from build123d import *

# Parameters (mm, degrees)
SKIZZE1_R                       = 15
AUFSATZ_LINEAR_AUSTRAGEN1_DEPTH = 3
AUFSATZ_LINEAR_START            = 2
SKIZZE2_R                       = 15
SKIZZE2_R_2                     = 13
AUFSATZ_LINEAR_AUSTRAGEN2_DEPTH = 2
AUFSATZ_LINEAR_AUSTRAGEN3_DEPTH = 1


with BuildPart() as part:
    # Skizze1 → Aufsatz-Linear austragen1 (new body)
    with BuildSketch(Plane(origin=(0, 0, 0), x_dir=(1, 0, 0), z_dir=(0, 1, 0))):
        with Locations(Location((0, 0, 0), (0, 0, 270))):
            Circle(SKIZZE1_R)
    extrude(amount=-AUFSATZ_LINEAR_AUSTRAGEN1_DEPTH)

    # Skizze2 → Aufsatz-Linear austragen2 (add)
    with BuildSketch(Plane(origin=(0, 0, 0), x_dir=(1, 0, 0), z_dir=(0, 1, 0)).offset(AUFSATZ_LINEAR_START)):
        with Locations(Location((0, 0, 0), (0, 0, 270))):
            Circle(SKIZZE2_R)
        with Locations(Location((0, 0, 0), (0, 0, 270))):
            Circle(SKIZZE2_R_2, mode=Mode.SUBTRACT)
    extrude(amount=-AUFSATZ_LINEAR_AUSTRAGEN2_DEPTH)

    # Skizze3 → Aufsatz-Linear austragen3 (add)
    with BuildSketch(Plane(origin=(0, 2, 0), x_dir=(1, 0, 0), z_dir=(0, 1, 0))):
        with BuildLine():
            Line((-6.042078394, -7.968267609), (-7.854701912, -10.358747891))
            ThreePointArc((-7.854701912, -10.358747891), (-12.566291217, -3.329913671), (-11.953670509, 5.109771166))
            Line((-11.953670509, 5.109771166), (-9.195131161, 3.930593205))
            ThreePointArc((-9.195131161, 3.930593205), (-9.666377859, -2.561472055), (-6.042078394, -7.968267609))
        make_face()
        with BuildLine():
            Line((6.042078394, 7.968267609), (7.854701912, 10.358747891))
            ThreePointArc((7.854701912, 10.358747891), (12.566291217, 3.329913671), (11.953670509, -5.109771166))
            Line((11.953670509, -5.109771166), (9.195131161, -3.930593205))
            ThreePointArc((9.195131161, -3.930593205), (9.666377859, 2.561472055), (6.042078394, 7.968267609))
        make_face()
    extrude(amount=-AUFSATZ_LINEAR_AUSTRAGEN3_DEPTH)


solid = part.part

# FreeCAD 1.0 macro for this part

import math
import FreeCAD as App
import Part
import Sketcher

V = App.Vector

doc = App.newDocument("Part")
body = doc.addObject("PartDesign::Body", "Body")

# Sketch on XZ plane
sketch1 = body.newObject("Sketcher::SketchObject", "Sketch")
sketch1.AttachmentSupport = (doc.getObject("XZ_Plane"), [""])
sketch1.MapMode = "FlatFace"
sketch1.addGeometry(Part.Circle(V(0, 0, 0), V(0, 0, 1), 15), False)
sketch1.addConstraint(Sketcher.Constraint("Coincident", 0, 3, -1, 1))
sketch1.addConstraint(Sketcher.Constraint("Diameter", 0, 30.0))
pad1 = body.newObject("PartDesign::Pad", "Pad")
pad1.Profile = sketch1
pad1.Length = 3

# Sketch on XZ plane
sketch2 = body.newObject("Sketcher::SketchObject", "Sketch001")
sketch2.AttachmentSupport = (doc.getObject("XZ_Plane"), [""])
sketch2.MapMode = "FlatFace"
sketch2.AttachmentOffset = App.Placement(V(0, 0, -2), App.Rotation())
sketch2.addGeometry(Part.Circle(V(0, 0, 0), V(0, 0, 1), 15), False)
sketch2.addGeometry(Part.Circle(V(0, 0, 0), V(0, 0, 1), 13), False)
sketch2.addConstraint(Sketcher.Constraint("Coincident", 0, 3, -1, 1))
sketch2.addConstraint(Sketcher.Constraint("Coincident", 1, 3, -1, 1))
sketch2.addConstraint(Sketcher.Constraint("Diameter", 0, 30.0))
sketch2.addConstraint(Sketcher.Constraint("Diameter", 1, 26.0))
pad2 = body.newObject("PartDesign::Pad", "Pad001")
pad2.Profile = sketch2
pad2.Length = 2

# Sketch on XZ plane
sketch3 = body.newObject("Sketcher::SketchObject", "Sketch002")
sketch3.AttachmentSupport = (doc.getObject("XZ_Plane"), [""])
sketch3.MapMode = "FlatFace"
sketch3.AttachmentOffset = App.Placement(V(0, 0, -2), App.Rotation())
sketch3.addGeometry(Part.LineSegment(V(-7.854702, 10.358748, 0), V(-6.042078, 7.968268, 0)), False)
sketch3.addGeometry(Part.ArcOfCircle(Part.Circle(V(0, 0, 0), V(0, 0, 1), 10), math.radians(127.17186), math.radians(203.144994)), False)
sketch3.addGeometry(Part.LineSegment(V(-9.195131, -3.930593, 0), V(-11.953671, -5.109771, 0)), False)
sketch3.addGeometry(Part.ArcOfCircle(Part.Circle(V(0, 0, 0), V(0, 0, 1), 13), math.radians(127.17186), math.radians(203.144994)), False)
sketch3.addGeometry(Part.LineSegment(V(7.854702, -10.358748, 0), V(6.042078, -7.968268, 0)), False)
sketch3.addGeometry(Part.ArcOfCircle(Part.Circle(V(0, 0, 0), V(0, 0, 1), 10), math.radians(-52.82814), math.radians(23.144994)), False)
sketch3.addGeometry(Part.LineSegment(V(9.195131, 3.930593, 0), V(11.953671, 5.109771, 0)), False)
sketch3.addGeometry(Part.ArcOfCircle(Part.Circle(V(0, 0, 0), V(0, 0, 1), 13), math.radians(-52.82814), math.radians(23.144994)), False)
sketch3.addConstraint(Sketcher.Constraint("Coincident", 0, 2, 1, 1))
sketch3.addConstraint(Sketcher.Constraint("Coincident", 1, 2, 2, 1))
sketch3.addConstraint(Sketcher.Constraint("Coincident", 2, 2, 3, 2))
sketch3.addConstraint(Sketcher.Constraint("Coincident", 3, 1, 0, 1))
sketch3.addConstraint(Sketcher.Constraint("Coincident", 4, 2, 5, 1))
sketch3.addConstraint(Sketcher.Constraint("Coincident", 5, 2, 6, 1))
sketch3.addConstraint(Sketcher.Constraint("Coincident", 6, 2, 7, 2))
sketch3.addConstraint(Sketcher.Constraint("Coincident", 7, 1, 4, 1))
sketch3.addConstraint(Sketcher.Constraint("Coincident", 1, 3, -1, 1))
sketch3.addConstraint(Sketcher.Constraint("Coincident", 3, 3, -1, 1))
sketch3.addConstraint(Sketcher.Constraint("Coincident", 5, 3, -1, 1))
sketch3.addConstraint(Sketcher.Constraint("Coincident", 7, 3, -1, 1))
sketch3.addConstraint(Sketcher.Constraint("Equal", 1, 5))
sketch3.addConstraint(Sketcher.Constraint("Equal", 3, 7))
sketch3.addConstraint(Sketcher.Constraint("Parallel", 0, 4))
sketch3.addConstraint(Sketcher.Constraint("Parallel", 2, 6))
sketch3.addConstraint(Sketcher.Constraint("Radius", 1, 10.0))
sketch3.addConstraint(Sketcher.Constraint("Radius", 3, 13.0))
sketch3.addConstraint(Sketcher.Constraint("DistanceX", 3, 1, -1, 1, 7.854702))
sketch3.addConstraint(Sketcher.Constraint("DistanceX", -1, 1, 7, 1, 7.854702))
sketch3.addConstraint(Sketcher.Constraint("DistanceX", 0, 2, -1, 1, 6.042078))
sketch3.addConstraint(Sketcher.Constraint("DistanceX", 1, 2, -1, 1, 9.195131))
sketch3.addConstraint(Sketcher.Constraint("DistanceX", 2, 2, -1, 1, 11.953671))
sketch3.addConstraint(Sketcher.Constraint("DistanceX", -1, 1, 5, 2, 9.195131))
pad3 = body.newObject("PartDesign::Pad", "Pad002")
pad3.Profile = sketch3
pad3.Length = 1

doc.recompute()
